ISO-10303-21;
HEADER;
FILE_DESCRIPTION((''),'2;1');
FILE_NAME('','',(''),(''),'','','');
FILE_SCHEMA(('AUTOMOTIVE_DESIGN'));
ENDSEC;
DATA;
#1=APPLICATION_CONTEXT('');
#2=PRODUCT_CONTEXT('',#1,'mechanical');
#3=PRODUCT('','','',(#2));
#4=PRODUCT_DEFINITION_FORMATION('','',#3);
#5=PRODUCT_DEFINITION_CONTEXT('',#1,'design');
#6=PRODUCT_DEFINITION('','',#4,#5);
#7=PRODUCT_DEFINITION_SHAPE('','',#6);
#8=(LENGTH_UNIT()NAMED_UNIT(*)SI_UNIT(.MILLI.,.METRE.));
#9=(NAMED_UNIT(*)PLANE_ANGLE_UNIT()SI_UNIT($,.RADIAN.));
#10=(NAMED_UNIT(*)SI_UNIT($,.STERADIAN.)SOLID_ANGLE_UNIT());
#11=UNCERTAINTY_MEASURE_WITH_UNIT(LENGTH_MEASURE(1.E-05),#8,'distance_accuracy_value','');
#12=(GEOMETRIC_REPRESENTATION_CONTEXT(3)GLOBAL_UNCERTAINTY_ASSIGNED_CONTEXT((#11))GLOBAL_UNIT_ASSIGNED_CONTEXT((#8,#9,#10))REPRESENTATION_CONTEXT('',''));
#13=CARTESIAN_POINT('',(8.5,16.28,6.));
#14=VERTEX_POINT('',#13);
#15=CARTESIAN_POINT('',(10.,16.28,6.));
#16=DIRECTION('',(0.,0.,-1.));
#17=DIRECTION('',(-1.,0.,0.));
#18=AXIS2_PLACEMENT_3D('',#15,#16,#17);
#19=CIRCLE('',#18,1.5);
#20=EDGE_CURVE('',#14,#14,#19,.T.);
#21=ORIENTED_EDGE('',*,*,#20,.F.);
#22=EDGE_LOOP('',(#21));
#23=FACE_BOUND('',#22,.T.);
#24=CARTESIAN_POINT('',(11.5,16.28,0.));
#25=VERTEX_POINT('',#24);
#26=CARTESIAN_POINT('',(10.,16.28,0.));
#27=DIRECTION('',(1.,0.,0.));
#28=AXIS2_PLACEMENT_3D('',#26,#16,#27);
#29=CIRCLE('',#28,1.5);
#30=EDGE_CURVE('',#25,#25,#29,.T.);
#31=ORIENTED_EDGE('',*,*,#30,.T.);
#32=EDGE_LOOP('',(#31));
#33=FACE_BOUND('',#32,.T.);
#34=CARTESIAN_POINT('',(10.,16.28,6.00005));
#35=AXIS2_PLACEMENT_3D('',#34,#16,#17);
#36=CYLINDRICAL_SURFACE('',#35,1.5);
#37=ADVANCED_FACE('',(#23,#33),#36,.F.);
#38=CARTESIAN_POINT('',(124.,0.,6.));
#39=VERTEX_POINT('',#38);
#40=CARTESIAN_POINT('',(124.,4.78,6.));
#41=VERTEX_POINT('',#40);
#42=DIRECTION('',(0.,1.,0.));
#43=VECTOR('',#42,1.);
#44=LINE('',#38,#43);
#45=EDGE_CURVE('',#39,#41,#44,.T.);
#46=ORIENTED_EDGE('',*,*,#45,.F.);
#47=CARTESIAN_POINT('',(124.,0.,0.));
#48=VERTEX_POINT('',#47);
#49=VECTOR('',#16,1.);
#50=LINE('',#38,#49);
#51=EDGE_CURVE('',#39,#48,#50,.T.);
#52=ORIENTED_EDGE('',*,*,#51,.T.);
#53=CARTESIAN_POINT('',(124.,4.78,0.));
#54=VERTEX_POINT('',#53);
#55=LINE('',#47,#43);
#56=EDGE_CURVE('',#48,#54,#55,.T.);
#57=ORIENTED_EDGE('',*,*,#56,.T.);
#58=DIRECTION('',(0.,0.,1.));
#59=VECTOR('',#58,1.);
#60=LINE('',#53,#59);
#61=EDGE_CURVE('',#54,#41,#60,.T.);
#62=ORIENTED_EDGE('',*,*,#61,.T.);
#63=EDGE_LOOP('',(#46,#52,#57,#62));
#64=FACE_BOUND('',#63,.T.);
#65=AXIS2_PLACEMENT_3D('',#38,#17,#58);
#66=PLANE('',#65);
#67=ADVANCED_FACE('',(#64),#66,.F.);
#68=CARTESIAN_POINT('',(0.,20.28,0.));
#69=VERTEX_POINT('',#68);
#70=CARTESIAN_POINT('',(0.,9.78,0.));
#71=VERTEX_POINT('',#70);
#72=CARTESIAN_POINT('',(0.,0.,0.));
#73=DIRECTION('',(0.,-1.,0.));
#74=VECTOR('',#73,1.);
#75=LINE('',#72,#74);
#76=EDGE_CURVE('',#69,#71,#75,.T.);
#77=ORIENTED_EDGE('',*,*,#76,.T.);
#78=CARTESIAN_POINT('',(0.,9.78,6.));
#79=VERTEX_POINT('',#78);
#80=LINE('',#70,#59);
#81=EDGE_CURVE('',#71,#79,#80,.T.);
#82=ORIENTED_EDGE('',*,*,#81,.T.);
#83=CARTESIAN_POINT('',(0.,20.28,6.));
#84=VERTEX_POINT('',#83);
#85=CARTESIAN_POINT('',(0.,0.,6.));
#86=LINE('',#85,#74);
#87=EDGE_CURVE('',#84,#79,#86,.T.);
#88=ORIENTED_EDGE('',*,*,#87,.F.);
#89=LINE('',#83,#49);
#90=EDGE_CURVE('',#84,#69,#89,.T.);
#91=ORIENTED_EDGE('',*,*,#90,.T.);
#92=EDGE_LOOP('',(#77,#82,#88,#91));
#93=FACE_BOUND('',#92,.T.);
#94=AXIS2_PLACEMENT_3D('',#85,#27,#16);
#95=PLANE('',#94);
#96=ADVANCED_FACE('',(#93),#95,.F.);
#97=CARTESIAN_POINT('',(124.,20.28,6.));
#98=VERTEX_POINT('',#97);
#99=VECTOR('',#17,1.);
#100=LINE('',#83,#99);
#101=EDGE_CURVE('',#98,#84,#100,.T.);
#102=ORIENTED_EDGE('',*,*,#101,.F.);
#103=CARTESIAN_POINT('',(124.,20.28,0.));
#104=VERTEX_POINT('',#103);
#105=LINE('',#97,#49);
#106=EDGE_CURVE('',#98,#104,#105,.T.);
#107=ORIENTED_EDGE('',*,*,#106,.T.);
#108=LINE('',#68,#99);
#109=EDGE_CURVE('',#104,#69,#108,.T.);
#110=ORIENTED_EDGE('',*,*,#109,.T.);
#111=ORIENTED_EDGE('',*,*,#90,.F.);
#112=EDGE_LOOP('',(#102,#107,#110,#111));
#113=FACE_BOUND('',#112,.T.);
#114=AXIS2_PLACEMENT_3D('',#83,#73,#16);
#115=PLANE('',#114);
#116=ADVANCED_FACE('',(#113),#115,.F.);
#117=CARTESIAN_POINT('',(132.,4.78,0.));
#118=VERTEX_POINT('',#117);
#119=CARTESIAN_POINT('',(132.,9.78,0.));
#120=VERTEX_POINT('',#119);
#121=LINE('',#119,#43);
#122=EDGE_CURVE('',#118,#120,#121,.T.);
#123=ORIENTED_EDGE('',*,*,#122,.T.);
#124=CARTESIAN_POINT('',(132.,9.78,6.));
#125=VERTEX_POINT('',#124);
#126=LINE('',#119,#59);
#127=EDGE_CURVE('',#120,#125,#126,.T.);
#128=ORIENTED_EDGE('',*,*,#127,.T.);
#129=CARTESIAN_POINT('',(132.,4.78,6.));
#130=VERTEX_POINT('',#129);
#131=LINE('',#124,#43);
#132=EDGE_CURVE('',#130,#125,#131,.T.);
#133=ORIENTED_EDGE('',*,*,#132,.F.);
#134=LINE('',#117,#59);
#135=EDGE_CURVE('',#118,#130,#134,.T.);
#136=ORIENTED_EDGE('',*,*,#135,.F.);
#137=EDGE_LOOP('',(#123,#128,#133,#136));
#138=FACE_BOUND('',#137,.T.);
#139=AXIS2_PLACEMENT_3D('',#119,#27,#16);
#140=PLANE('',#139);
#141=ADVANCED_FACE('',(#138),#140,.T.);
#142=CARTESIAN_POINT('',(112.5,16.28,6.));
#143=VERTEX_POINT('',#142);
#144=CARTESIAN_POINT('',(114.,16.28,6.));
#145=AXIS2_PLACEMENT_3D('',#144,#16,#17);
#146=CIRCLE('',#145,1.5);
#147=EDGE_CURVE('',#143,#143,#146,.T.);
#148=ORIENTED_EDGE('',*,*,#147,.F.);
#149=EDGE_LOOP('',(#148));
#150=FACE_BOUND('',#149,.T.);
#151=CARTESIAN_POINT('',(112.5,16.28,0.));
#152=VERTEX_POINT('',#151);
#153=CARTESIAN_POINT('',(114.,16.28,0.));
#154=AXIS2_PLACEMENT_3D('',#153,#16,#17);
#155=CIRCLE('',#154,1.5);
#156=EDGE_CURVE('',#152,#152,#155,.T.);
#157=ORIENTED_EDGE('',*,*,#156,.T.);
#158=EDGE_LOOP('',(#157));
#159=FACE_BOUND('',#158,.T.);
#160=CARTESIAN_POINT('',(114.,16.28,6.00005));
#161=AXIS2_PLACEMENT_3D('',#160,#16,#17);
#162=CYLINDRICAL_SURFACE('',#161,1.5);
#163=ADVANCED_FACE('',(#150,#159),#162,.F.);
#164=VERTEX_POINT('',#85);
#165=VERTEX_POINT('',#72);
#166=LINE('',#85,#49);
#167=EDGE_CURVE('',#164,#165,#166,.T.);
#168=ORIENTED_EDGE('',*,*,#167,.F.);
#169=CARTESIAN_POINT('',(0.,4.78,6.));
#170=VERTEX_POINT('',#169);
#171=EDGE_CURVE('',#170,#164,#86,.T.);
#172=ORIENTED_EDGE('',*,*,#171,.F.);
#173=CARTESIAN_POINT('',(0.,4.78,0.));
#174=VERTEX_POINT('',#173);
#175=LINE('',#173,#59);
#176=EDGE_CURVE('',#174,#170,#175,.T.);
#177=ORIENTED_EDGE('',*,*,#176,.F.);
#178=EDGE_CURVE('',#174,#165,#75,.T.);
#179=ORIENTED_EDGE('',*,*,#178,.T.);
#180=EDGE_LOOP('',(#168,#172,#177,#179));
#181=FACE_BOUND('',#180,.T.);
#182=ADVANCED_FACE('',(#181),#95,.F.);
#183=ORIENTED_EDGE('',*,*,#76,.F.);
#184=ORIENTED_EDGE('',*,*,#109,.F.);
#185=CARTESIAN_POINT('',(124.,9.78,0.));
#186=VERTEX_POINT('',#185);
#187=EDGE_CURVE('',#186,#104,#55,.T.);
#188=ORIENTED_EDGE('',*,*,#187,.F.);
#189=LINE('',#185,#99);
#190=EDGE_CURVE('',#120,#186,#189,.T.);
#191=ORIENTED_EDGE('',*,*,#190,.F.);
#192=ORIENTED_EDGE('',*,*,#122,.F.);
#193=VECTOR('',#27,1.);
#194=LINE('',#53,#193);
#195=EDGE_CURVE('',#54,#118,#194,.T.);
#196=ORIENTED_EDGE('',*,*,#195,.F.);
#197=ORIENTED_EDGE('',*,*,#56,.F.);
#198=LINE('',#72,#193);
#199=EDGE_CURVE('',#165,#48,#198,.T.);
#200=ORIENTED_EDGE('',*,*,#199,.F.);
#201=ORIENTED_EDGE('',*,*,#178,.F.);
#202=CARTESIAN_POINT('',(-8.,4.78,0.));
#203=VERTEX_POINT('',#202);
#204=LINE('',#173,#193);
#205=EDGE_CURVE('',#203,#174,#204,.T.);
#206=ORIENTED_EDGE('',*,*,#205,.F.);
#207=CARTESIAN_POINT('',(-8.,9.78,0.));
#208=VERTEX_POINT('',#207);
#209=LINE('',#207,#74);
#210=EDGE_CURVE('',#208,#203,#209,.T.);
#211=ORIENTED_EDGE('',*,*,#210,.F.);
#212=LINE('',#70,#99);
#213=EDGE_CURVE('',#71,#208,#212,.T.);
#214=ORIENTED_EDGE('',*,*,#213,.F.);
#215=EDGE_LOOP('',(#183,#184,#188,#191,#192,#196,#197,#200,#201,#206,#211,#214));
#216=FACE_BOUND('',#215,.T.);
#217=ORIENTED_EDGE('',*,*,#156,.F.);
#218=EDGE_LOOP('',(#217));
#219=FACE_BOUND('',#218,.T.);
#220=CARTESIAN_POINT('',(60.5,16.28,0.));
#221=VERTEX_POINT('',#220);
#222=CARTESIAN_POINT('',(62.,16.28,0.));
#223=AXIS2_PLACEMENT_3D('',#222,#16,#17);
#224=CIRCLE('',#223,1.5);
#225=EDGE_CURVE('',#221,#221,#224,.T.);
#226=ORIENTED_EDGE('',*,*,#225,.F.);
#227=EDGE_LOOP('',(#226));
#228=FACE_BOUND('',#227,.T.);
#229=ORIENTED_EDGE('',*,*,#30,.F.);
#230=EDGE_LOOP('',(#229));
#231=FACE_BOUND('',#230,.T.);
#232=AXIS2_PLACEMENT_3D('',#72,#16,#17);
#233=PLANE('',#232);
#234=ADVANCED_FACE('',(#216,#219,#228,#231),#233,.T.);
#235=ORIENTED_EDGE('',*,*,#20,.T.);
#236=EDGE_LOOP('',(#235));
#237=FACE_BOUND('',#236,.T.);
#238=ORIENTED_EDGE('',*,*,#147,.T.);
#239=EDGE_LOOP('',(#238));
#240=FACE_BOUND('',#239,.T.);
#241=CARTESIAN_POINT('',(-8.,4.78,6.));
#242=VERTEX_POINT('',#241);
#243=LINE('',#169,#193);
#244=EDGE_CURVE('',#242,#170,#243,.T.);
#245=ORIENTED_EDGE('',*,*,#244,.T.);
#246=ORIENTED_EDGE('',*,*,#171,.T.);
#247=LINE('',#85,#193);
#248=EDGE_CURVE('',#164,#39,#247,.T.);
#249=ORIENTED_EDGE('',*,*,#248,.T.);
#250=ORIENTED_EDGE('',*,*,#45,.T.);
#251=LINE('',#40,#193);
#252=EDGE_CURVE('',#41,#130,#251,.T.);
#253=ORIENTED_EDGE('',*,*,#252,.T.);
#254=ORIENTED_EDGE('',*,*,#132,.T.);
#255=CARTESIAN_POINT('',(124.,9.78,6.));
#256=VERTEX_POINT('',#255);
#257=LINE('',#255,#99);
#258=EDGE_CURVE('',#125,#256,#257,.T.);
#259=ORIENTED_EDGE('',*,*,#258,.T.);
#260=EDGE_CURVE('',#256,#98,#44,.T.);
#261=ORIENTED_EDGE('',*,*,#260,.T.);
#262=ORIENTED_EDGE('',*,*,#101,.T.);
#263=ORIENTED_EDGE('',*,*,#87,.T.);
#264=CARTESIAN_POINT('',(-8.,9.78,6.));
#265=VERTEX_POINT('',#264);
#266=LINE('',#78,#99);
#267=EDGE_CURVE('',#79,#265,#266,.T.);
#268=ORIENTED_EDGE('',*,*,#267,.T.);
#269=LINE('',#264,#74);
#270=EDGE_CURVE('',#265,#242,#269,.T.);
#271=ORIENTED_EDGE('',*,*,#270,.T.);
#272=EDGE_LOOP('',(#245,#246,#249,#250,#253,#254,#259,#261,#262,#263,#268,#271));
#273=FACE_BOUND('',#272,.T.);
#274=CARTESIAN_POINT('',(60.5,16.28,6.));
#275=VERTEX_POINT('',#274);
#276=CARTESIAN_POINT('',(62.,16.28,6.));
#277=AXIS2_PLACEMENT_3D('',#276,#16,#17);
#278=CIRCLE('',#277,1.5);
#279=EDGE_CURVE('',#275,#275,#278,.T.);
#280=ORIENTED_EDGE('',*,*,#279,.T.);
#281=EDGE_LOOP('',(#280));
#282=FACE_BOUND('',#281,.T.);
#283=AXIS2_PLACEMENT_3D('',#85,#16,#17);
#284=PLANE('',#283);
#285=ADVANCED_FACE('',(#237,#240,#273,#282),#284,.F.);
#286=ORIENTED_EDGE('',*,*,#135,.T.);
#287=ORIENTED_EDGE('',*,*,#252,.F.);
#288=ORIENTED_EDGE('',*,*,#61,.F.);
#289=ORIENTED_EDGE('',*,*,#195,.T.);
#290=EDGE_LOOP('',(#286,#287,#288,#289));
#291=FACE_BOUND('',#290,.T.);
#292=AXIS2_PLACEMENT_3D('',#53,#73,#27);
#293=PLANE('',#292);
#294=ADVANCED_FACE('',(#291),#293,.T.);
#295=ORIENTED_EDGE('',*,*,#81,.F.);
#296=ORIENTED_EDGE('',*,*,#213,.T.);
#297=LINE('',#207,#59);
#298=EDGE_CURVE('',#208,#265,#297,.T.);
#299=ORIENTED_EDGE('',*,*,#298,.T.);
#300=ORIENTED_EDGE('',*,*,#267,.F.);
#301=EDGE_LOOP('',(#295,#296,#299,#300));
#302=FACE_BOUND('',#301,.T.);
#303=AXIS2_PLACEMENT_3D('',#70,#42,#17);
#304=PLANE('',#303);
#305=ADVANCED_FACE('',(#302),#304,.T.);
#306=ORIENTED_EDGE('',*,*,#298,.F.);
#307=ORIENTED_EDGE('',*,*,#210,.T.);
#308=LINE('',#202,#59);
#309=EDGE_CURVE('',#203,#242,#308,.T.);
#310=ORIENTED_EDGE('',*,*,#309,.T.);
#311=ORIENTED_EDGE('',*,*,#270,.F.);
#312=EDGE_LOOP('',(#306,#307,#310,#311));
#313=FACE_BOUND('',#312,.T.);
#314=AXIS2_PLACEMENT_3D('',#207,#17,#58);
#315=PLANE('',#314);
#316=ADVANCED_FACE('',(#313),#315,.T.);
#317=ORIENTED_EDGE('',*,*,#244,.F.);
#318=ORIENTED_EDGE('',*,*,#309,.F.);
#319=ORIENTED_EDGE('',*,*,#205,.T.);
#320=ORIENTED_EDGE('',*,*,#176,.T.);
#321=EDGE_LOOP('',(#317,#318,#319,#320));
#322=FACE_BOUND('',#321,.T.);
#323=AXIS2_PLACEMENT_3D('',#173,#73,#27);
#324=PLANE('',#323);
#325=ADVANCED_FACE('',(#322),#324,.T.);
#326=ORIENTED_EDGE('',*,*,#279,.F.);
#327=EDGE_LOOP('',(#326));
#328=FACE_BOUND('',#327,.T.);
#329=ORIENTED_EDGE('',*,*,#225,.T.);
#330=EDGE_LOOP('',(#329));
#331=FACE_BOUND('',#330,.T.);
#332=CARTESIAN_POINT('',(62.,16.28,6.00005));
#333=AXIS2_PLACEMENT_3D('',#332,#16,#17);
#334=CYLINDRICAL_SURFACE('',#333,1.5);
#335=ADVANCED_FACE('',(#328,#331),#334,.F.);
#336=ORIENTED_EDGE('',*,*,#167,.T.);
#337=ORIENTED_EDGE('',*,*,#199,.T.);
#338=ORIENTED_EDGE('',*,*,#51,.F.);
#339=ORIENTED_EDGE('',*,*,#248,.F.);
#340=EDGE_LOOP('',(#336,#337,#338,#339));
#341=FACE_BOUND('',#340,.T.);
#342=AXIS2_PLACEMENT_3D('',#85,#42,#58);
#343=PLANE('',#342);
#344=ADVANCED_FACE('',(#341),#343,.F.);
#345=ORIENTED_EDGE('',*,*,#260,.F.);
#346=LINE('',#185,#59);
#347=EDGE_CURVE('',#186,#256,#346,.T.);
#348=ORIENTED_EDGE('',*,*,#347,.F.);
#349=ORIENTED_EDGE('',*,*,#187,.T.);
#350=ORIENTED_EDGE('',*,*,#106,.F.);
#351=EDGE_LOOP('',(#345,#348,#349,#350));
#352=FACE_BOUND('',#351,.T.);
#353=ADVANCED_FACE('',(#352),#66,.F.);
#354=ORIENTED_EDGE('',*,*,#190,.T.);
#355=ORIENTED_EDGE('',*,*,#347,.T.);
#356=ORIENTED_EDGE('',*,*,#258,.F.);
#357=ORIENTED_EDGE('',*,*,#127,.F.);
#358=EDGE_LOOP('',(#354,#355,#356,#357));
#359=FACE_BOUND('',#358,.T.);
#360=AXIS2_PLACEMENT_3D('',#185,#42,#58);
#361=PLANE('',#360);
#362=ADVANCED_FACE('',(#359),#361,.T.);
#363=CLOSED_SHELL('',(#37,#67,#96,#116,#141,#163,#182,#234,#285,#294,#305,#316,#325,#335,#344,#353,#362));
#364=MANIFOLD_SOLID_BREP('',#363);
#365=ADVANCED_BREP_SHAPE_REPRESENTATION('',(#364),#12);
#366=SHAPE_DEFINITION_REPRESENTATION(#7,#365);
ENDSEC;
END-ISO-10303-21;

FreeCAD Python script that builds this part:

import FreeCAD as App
import Part
import Sketcher

doc = App.newDocument("Part")
params = doc.addObject("Spreadsheet::Sheet", "Params")
for row, (alias, value) in enumerate([
    ("sketch1_width", "124 mm"),
    ("sketch1_height", "20.28 mm"),
    ("pad1_length", "6 mm"),
    ("sketch2_width", "8 mm"),
    ("sketch2_height", "5 mm"),
    ("pad2_length", "6 mm"),
    ("sketch3_diameter", "3 mm"),
], start=1):
    params.set(f"A{row}", alias)
    params.set(f"B{row}", "=" + value)
    params.setAlias(f"B{row}", alias)

body = doc.addObject("PartDesign::Body", "Body")

sketch1 = body.newObject("Sketcher::SketchObject", "Sketch")
sketch1.AttachmentSupport = (doc.getObject("XY_Plane"), [""])
sketch1.MapMode = "FlatFace"
sketch1.addGeometry([
    Part.LineSegment(App.Vector(0, 20, 0), App.Vector(0, 0, 0)),
    Part.LineSegment(App.Vector(0, 0, 0), App.Vector(124, 0, 0)),
    Part.LineSegment(App.Vector(124, 0, 0), App.Vector(124, 20, 0)),
    Part.LineSegment(App.Vector(124, 20, 0), App.Vector(0, 20, 0)),
], False)
sketch1.addConstraint([
    Sketcher.Constraint("Coincident", 0, 2, 1, 1),
    Sketcher.Constraint("Coincident", 1, 2, 2, 1),
    Sketcher.Constraint("Coincident", 2, 2, 3, 1),
    Sketcher.Constraint("Coincident", 3, 2, 0, 1),
    Sketcher.Constraint("Vertical", 0),
    Sketcher.Constraint("Horizontal", 1),
    Sketcher.Constraint("Vertical", 2),
    Sketcher.Constraint("Horizontal", 3),
    Sketcher.Constraint("Coincident", 0, 2, -1, 1),
    Sketcher.Constraint("DistanceX", 1, 1, 1, 2, 124.0),
    Sketcher.Constraint("DistanceY", 0, 2, 0, 1, 20.28),
])
sketch1.setExpression("Constraints[9]", "Params.sketch1_width")
sketch1.setExpression("Constraints[10]", "Params.sketch1_height")
pad1 = body.newObject("PartDesign::Pad", "Pad")
pad1.Profile = sketch1
pad1.setExpression("Length", "Params.pad1_length")

sketch2 = body.newObject("Sketcher::SketchObject", "Sketch001")
sketch2.AttachmentSupport = (doc.getObject("XY_Plane"), [""])
sketch2.MapMode = "FlatFace"
sketch2.AttachmentOffset = App.Placement(App.Vector(0, 0, 6), App.Rotation())
sketch2.addGeometry([
    Part.LineSegment(App.Vector(-8, 9.8, 0), App.Vector(-8, 4.8, 0)),
    Part.LineSegment(App.Vector(-8, 4.8, 0), App.Vector(0, 4.8, 0)),
    Part.LineSegment(App.Vector(0, 4.8, 0), App.Vector(0, 9.8, 0)),
    Part.LineSegment(App.Vector(0, 9.8, 0), App.Vector(-8, 9.8, 0)),
    Part.LineSegment(App.Vector(124, 9.8, 0), App.Vector(124, 4.8, 0)),
    Part.LineSegment(App.Vector(124, 4.8, 0), App.Vector(132, 4.8, 0)),
    Part.LineSegment(App.Vector(132, 4.8, 0), App.Vector(132, 9.8, 0)),
    Part.LineSegment(App.Vector(132, 9.8, 0), App.Vector(124, 9.8, 0)),
], False)
sketch2.addConstraint([
    Sketcher.Constraint("Coincident", 0, 2, 1, 1),
    Sketcher.Constraint("Coincident", 1, 2, 2, 1),
    Sketcher.Constraint("Coincident", 2, 2, 3, 1),
    Sketcher.Constraint("Coincident", 3, 2, 0, 1),
    Sketcher.Constraint("Coincident", 4, 2, 5, 1),
    Sketcher.Constraint("Coincident", 5, 2, 6, 1),
    Sketcher.Constraint("Coincident", 6, 2, 7, 1),
    Sketcher.Constraint("Coincident", 7, 2, 4, 1),
    Sketcher.Constraint("Vertical", 0),
    Sketcher.Constraint("Horizontal", 1),
    Sketcher.Constraint("Vertical", 2),
    Sketcher.Constraint("Horizontal", 3),
    Sketcher.Constraint("Vertical", 4),
    Sketcher.Constraint("Horizontal", 5),
    Sketcher.Constraint("Vertical", 6),
    Sketcher.Constraint("Horizontal", 7),
    Sketcher.Constraint("PointOnObject", 1, 2, -2),
    Sketcher.Constraint("Horizontal", 1, 2, 4, 2),
    Sketcher.Constraint("Horizontal", 3, 2, 6, 2),
    Sketcher.Constraint("Equal", 3, 5),
    Sketcher.Constraint("DistanceX", 1, 1, 1, 2, 8.0),
    Sketcher.Constraint("DistanceY", 0, 2, 0, 1, 5.0),
    Sketcher.Constraint("DistanceX", -1, 1, 4, 2, 124.0),
    Sketcher.Constraint("DistanceY", -1, 1, 0, 2, 4.78),
])
sketch2.setExpression("Constraints[20]", "Params.sketch2_width")
sketch2.setExpression("Constraints[21]", "Params.sketch2_height")
pad2 = body.newObject("PartDesign::Pad", "Pad001")
pad2.Profile = sketch2
pad2.setExpression("Length", "Params.pad2_length")
pad2.Reversed = True

sketch3 = body.newObject("Sketcher::SketchObject", "Sketch002")
sketch3.AttachmentSupport = (doc.getObject("XY_Plane"), [""])
sketch3.MapMode = "FlatFace"
sketch3.addGeometry([
    Part.Circle(App.Vector(62, 16.3, 0), App.Vector(0, 0, 1), 1.5),
    Part.Circle(App.Vector(114, 16.3, 0), App.Vector(0, 0, 1), 1.5),
    Part.Circle(App.Vector(10, 16.3, 0), App.Vector(0, 0, 1), 1.5),
], False)
sketch3.addConstraint([
    Sketcher.Constraint("Equal", 0, 1),
    Sketcher.Constraint("Equal", 1, 2),
    Sketcher.Constraint("Horizontal", 0, 3, 1, 3),
    Sketcher.Constraint("Horizontal", 1, 3, 2, 3),
    Sketcher.Constraint("Diameter", 0, 3.0),
    Sketcher.Constraint("DistanceX", -1, 1, 0, 3, 62.0),
    Sketcher.Constraint("DistanceX", -1, 1, 1, 3, 114.0),
    Sketcher.Constraint("DistanceX", -1, 1, 2, 3, 10.0),
    Sketcher.Constraint("DistanceY", -1, 1, 0, 3, 16.28),
])
sketch3.setExpression("Constraints[4]", "Params.sketch3_diameter")
pocket1 = body.newObject("PartDesign::Pocket", "Pocket")
pocket1.Profile = sketch3
pocket1.Type = "ThroughAll"
pocket1.Reversed = True

doc.recompute()
